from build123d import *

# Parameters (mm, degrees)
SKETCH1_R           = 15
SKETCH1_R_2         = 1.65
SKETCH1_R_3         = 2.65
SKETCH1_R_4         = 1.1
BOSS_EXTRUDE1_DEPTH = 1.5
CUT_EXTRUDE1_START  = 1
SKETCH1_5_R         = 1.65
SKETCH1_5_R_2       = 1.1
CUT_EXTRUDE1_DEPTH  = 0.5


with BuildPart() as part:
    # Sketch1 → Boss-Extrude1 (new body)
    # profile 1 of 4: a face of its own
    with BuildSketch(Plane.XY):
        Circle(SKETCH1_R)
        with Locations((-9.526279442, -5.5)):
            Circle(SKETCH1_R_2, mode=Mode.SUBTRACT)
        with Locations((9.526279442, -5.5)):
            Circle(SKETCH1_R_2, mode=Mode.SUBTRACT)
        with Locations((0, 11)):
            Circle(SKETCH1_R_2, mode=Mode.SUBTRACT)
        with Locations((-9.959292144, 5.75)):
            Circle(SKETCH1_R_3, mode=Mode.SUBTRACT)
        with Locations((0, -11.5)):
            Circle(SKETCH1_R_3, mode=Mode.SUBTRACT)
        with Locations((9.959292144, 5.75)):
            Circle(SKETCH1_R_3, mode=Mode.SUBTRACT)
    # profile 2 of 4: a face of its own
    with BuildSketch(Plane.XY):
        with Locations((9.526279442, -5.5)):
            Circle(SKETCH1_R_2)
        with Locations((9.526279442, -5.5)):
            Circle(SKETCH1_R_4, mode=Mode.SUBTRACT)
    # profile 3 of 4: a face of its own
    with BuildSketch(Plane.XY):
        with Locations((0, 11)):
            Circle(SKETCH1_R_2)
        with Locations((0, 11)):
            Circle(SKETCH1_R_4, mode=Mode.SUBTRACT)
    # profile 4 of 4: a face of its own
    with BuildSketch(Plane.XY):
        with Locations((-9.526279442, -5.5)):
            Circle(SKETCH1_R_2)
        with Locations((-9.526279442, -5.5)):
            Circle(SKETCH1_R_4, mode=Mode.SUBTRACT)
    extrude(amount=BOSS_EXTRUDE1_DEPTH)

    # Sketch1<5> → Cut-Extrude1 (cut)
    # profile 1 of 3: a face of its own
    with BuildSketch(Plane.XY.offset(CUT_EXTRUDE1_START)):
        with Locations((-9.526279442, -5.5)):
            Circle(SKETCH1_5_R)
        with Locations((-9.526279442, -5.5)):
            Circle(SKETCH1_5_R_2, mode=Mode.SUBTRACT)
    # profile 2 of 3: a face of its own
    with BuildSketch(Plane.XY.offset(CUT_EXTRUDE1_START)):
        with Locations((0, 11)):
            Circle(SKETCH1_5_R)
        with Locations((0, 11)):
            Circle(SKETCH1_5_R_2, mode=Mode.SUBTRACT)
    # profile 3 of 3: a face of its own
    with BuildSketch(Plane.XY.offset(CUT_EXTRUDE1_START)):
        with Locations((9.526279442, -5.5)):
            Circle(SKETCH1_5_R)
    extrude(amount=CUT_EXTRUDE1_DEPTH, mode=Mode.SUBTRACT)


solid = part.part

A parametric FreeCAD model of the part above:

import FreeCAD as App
import Part
import Sketcher
from FreeCAD import Vector

doc = App.newDocument("Part")
body = doc.addObject("PartDesign::Body", "Body")

# Sketch on XY plane
sketch1 = doc.addObject("Sketcher::SketchObject", "Sketch")
body.addObject(sketch1)
sketch1.AttachmentSupport = (doc.XY_Plane, [""])
sketch1.MapMode = "FlatFace"
sketch1.addGeometry([
    Part.Circle(Vector(0, 0, 0), Vector(0, 0, 1), 15),  # 0
    Part.Circle(Vector(0, -11.5, 0), Vector(0, 0, 1), 2.6),  # 1
    Part.Circle(Vector(-10, 5.8, 0), Vector(0, 0, 1), 2.6),  # 2
    Part.Circle(Vector(10, 5.8, 0), Vector(0, 0, 1), 2.6),  # 3
    Part.Circle(Vector(-9.5, -5.5, 0), Vector(0, 0, 1), 1.1),  # 4
    Part.Circle(Vector(9.5, -5.5, 0), Vector(0, 0, 1), 1.1),  # 5
    Part.Circle(Vector(0, 11, 0), Vector(0, 0, 1), 1.1),  # 6
], False)
sketch1.addConstraint([
    Sketcher.Constraint("Coincident", 0, 3, -1, 1),
    Sketcher.Constraint("Equal", 1, 2),
    Sketcher.Constraint("Equal", 2, 3),
    Sketcher.Constraint("Equal", 4, 5),
    Sketcher.Constraint("Equal", 5, 6),
    Sketcher.Constraint("Symmetric", 2, 3, 3, 3, -2),
    Sketcher.Constraint("Symmetric", 4, 3, 5, 3, -2),
    Sketcher.Constraint("PointOnObject", 1, 3, -2),
    Sketcher.Constraint("PointOnObject", 6, 3, -2),
    Sketcher.Constraint("Diameter", 0, 30.0),
    Sketcher.Constraint("Diameter", 1, 5.3),
    Sketcher.Constraint("Diameter", 4, 2.2),
    Sketcher.Constraint("DistanceY", -1, 1, 6, 3, 11.0),
    Sketcher.Constraint("DistanceY", 1, 3, 4, 3, 6.0),
    Sketcher.Constraint("DistanceY", 1, 3, -1, 1, 11.5),
    Sketcher.Constraint("DistanceY", -1, 1, 2, 3, 5.75),
    Sketcher.Constraint("DistanceX", 4, 3, -1, 1, 9.526279),
    Sketcher.Constraint("DistanceX", 4, 3, 3, 3, 19.485572),
])
pad1 = doc.addObject("PartDesign::Pad", "Pad")
body.addObject(pad1)
pad1.Profile = sketch1
pad1.Length = 1.5

# Sketch on XY plane
sketch2 = doc.addObject("Sketcher::SketchObject", "Sketch001")
body.addObject(sketch2)
sketch2.AttachmentSupport = (doc.XY_Plane, [""])
sketch2.MapMode = "FlatFace"
sketch2.AttachmentOffset = App.Placement(Vector(0, 0, 1), App.Rotation())
sketch2.addGeometry([
    Part.Circle(Vector(-9.5, -5.5, 0), Vector(0, 0, 1), 1.6),  # 0
    Part.Circle(Vector(-9.5, -5.5, 0), Vector(0, 0, 1), 1.1),  # 1
    Part.Circle(Vector(0, 11, 0), Vector(0, 0, 1), 1.6),  # 2
    Part.Circle(Vector(0, 11, 0), Vector(0, 0, 1), 1.1),  # 3
    Part.Circle(Vector(9.5, -5.5, 0), Vector(0, 0, 1), 1.6),  # 4
], False)
sketch2.addConstraint([
    Sketcher.Constraint("Coincident", 1, 3, 0, 3),
    Sketcher.Constraint("Coincident", 3, 3, 2, 3),
    Sketcher.Constraint("Equal", 0, 2),
    Sketcher.Constraint("Equal", 1, 3),
    Sketcher.Constraint("Equal", 2, 4),
    Sketcher.Constraint("Symmetric", 0, 3, 4, 3, -2),
    Sketcher.Constraint("PointOnObject", 2, 3, -2),
    Sketcher.Constraint("Diameter", 0, 3.3),
    Sketcher.Constraint("Diameter", 1, 2.2),
    Sketcher.Constraint("DistanceY", -1, 1, 2, 3, 11.0),
    Sketcher.Constraint("DistanceY", 0, 3, -1, 1, 5.5),
    Sketcher.Constraint("DistanceX", 0, 3, -1, 1, 9.526279),
])
pocket1 = doc.addObject("PartDesign::Pocket", "Pocket")
body.addObject(pocket1)
pocket1.Profile = sketch2
pocket1.Length = 0.5
pocket1.Reversed = True

doc.recompute()
